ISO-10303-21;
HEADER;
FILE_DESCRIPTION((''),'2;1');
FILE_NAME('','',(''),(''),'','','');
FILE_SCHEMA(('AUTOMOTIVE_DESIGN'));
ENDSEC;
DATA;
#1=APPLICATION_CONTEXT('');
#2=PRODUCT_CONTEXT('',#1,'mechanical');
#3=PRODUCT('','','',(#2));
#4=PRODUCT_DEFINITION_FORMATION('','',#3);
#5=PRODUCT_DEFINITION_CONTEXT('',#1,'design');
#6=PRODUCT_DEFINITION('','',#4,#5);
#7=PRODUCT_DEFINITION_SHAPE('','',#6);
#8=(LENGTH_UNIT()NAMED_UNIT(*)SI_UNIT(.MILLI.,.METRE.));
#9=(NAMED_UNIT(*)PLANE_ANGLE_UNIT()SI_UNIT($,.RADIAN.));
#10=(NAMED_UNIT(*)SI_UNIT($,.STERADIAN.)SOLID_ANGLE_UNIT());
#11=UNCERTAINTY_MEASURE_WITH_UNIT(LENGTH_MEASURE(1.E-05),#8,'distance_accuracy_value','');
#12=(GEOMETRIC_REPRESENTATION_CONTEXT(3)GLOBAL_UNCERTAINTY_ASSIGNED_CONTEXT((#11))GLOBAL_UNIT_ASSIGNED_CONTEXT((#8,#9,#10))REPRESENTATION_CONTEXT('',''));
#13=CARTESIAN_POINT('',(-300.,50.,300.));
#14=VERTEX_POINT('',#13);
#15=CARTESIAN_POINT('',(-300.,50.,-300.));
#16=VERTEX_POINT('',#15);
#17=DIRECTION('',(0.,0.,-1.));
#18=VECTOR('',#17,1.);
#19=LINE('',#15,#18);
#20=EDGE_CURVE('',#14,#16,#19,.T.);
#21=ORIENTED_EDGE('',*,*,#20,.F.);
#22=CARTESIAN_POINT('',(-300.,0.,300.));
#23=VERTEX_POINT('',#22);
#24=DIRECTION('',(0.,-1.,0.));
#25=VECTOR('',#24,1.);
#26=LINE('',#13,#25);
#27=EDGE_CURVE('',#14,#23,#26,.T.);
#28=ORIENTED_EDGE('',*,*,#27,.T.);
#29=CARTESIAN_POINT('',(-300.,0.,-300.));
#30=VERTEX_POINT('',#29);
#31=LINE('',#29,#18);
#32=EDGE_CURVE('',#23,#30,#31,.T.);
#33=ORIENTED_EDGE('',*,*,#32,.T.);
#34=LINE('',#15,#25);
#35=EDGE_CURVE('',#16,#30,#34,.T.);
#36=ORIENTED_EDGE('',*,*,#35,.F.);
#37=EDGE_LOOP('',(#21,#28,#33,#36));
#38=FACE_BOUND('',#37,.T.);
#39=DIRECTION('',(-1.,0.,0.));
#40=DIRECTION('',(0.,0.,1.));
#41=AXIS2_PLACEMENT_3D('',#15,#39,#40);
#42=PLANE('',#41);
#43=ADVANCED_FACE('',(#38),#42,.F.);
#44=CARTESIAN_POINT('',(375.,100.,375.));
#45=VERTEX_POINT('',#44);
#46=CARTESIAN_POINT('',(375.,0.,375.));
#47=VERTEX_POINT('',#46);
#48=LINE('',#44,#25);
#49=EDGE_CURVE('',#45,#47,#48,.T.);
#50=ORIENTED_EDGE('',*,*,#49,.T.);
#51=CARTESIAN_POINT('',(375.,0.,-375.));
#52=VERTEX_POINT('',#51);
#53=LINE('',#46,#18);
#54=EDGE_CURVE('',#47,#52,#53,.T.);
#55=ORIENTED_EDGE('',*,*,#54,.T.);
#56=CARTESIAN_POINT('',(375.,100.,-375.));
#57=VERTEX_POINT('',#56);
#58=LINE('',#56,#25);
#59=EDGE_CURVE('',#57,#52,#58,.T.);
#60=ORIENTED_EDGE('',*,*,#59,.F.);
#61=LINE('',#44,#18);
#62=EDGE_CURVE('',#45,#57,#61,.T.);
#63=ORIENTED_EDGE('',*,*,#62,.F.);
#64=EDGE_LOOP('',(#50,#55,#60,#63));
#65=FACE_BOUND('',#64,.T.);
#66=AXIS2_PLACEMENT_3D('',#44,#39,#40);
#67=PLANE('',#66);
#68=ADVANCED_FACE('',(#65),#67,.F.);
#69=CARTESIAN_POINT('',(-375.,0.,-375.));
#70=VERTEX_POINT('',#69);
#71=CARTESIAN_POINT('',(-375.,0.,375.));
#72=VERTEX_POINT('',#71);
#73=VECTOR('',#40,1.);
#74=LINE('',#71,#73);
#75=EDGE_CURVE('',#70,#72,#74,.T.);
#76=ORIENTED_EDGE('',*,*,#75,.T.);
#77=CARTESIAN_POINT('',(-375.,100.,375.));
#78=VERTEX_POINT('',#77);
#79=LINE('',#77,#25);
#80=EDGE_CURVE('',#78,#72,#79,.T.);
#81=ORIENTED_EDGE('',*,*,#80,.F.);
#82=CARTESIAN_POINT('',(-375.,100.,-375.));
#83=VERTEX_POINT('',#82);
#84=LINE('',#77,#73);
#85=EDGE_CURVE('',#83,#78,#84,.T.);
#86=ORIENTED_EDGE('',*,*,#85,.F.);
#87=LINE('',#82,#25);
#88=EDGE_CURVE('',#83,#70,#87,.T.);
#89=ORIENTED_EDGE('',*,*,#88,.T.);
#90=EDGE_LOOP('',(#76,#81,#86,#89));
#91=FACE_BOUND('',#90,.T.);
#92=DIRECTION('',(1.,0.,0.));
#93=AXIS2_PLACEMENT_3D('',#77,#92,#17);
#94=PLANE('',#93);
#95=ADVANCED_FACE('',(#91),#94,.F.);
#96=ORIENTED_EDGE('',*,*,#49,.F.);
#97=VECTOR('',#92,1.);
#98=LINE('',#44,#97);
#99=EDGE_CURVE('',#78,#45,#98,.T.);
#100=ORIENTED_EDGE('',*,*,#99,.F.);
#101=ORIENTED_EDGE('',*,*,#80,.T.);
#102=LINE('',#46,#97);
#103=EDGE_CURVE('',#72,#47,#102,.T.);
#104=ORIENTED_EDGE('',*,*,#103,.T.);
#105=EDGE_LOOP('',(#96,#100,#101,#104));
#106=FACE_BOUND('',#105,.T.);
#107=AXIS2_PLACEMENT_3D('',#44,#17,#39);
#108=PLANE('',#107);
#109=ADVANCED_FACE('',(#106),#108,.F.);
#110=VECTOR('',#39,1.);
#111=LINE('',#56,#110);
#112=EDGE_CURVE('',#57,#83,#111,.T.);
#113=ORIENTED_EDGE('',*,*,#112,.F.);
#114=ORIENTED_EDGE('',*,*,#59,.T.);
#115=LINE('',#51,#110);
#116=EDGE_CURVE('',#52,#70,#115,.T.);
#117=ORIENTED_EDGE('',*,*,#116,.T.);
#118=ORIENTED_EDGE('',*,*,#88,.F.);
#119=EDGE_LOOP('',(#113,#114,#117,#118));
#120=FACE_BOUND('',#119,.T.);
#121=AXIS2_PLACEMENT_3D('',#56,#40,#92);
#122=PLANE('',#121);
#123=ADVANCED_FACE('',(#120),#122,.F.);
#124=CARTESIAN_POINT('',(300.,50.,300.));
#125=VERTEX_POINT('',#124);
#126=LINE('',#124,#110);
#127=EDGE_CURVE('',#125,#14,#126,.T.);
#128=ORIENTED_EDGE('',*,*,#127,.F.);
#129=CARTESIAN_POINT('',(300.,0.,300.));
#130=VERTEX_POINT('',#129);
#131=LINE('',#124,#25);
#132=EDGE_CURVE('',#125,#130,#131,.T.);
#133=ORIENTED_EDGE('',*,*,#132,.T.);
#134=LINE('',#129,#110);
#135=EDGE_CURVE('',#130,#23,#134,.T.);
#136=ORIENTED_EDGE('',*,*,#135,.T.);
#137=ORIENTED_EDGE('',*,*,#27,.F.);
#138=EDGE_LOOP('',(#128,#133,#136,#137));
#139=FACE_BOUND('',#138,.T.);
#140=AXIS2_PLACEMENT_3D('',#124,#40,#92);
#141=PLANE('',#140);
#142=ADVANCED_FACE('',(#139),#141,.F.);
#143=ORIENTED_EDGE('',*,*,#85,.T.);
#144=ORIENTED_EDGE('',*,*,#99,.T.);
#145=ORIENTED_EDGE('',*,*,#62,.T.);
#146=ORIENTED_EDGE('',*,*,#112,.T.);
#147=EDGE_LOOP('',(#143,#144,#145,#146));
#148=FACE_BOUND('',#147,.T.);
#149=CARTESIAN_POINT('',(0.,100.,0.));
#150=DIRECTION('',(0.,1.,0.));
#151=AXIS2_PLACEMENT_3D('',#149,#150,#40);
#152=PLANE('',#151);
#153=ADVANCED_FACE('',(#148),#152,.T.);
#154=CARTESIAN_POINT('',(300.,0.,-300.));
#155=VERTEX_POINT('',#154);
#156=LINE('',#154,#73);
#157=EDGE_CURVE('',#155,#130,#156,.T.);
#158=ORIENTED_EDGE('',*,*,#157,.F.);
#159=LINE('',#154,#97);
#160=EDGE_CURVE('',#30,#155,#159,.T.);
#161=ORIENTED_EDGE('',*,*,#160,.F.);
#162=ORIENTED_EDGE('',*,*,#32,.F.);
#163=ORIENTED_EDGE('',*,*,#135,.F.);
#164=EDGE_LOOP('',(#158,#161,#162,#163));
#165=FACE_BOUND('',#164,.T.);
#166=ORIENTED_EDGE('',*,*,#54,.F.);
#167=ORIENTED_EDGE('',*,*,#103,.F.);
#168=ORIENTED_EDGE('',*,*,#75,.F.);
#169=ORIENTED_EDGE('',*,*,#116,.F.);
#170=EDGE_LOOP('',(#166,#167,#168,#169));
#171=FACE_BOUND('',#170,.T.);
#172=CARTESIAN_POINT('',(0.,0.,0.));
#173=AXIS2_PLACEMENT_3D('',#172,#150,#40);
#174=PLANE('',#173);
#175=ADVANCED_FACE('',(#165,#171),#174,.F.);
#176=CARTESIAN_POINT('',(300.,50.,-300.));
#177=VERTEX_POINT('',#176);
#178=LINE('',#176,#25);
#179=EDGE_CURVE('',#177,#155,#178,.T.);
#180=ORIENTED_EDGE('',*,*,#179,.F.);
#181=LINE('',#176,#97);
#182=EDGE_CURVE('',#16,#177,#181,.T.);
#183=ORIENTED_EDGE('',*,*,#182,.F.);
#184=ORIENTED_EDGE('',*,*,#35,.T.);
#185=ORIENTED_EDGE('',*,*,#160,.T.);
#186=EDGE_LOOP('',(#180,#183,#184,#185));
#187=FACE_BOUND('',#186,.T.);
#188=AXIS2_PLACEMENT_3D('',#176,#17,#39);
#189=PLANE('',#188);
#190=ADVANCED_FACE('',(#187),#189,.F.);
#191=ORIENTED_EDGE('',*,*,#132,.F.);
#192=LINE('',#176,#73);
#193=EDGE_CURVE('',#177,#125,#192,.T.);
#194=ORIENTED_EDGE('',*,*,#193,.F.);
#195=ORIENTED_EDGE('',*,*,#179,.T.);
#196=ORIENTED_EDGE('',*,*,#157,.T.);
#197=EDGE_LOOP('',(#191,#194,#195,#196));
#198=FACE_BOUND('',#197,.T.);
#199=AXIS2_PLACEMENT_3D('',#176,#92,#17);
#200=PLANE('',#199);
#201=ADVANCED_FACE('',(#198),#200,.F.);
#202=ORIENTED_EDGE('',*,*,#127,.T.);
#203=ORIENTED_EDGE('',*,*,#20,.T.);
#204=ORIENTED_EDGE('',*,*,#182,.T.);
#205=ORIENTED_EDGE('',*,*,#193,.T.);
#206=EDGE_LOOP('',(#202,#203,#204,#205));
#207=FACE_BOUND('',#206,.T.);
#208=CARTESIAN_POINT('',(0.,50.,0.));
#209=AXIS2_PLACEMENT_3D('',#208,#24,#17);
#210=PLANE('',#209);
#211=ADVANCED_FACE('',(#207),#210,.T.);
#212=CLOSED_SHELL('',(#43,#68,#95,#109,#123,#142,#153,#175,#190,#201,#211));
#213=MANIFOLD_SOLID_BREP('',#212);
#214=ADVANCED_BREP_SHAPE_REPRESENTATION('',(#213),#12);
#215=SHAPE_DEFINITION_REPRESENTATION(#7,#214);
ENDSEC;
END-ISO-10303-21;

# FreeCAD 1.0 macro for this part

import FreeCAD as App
import Part
import Sketcher
Q = App.Units.Quantity


def add_polygon(sketch, points):
    """Adds a closed chain of lines whose ends are joined by coincident constraints."""
    first, n = sketch.GeometryCount, len(points)
    for a, b in zip(points, points[1:] + points[:1]):
        sketch.addGeometry(Part.LineSegment(App.Vector(*a, 0), App.Vector(*b, 0)), False)
    for i in range(n):
        sketch.addConstraint(Sketcher.Constraint("Coincident", first + i, 2, first + (i + 1) % n, 1))

doc = App.newDocument("Part")
body = doc.addObject("PartDesign::Body", "Body")

# Sketch on XZ plane
sketch1 = doc.addObject("Sketcher::SketchObject", "Sketch")
body.addObject(sketch1)
sketch1.AttachmentSupport = (doc.XZ_Plane, [""])
sketch1.MapMode = "FlatFace"
add_polygon(sketch1, [(-375, -375), (-375, 375), (375, 375), (375, -375)])  # lines 0-3
sketch1.addConstraint(Sketcher.Constraint("Vertical", 0))
sketch1.addConstraint(Sketcher.Constraint("Horizontal", 1))
sketch1.addConstraint(Sketcher.Constraint("Vertical", 2))
sketch1.addConstraint(Sketcher.Constraint("Horizontal", 3))
sketch1.addConstraint(Sketcher.Constraint("Symmetric", 0, 2, 2, 2, -1, 1))
sketch1.addConstraint(Sketcher.Constraint("Equal", 3, 0))
sketch1.addConstraint(Sketcher.Constraint("DistanceX", 1, 1, 1, 2, Q("750 mm")))
pad1 = doc.addObject("PartDesign::Pad", "Pad")
body.addObject(pad1)
pad1.Profile = sketch1
pad1.Length = 100
pad1.Reversed = True

# Sketch on XZ plane
sketch2 = doc.addObject("Sketcher::SketchObject", "Sketch001")
body.addObject(sketch2)
sketch2.AttachmentSupport = (doc.XZ_Plane, [""])
sketch2.MapMode = "FlatFace"
add_polygon(sketch2, [(-300, 300), (-300, -300), (300, -300), (300, 300)])  # lines 0-3
sketch2.addConstraint(Sketcher.Constraint("Vertical", 0))
sketch2.addConstraint(Sketcher.Constraint("Horizontal", 1))
sketch2.addConstraint(Sketcher.Constraint("Vertical", 2))
sketch2.addConstraint(Sketcher.Constraint("Horizontal", 3))
sketch2.addConstraint(Sketcher.Constraint("Symmetric", 0, 2, 2, 2, -1, 1))
sketch2.addConstraint(Sketcher.Constraint("Equal", 3, 0))
sketch2.addConstraint(Sketcher.Constraint("DistanceX", 1, 1, 1, 2, Q("600 mm")))
pocket1 = doc.addObject("PartDesign::Pocket", "Pocket")
body.addObject(pocket1)
pocket1.Profile = sketch2
pocket1.Length = 50

doc.recompute()
